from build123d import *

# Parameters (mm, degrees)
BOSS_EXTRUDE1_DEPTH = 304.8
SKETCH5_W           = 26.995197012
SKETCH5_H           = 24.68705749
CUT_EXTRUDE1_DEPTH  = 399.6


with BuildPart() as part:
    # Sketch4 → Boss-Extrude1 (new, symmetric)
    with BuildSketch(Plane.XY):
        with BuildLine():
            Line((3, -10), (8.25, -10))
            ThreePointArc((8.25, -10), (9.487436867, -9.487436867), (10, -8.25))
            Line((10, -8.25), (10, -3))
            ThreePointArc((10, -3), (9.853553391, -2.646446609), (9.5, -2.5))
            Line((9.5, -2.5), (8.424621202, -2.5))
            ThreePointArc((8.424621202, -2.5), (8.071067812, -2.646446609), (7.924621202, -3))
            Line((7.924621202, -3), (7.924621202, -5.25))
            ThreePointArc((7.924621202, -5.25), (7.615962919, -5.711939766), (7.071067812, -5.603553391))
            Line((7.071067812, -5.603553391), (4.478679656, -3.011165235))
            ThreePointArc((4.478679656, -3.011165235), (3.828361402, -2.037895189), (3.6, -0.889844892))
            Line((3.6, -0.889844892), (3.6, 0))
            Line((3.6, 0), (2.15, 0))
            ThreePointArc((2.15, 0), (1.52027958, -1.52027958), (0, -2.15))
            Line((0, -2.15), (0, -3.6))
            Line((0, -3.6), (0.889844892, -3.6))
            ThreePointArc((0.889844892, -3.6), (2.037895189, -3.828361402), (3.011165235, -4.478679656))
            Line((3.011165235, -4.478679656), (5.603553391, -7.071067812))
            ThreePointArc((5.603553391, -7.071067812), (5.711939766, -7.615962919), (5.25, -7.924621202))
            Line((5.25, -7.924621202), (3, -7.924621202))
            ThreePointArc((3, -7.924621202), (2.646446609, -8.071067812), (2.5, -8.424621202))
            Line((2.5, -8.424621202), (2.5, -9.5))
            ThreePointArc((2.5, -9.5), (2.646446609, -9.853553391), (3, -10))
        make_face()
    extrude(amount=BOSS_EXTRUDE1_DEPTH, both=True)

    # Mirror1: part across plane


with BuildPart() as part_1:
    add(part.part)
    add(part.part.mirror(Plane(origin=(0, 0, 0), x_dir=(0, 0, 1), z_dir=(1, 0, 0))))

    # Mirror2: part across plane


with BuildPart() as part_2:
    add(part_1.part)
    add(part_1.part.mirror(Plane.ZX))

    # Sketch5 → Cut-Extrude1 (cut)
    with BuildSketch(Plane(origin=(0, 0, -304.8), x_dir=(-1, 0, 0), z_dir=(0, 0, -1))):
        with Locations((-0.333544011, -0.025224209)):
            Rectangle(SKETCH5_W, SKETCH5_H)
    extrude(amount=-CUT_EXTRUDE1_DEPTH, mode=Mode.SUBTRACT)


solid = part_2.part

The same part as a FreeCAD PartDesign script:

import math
import FreeCAD as App
import Part
import Sketcher
Q = App.Units.Quantity

doc = App.newDocument("Part")
body = doc.addObject("PartDesign::Body", "Body")

# Sketch on XY plane
sketch1 = body.newObject("Sketcher::SketchObject", "Sketch")
sketch1.AttachmentSupport = (doc.getObject("XY_Plane"), [""])
sketch1.MapMode = "FlatFace"
sketch1.addGeometry([
    Part.LineSegment(App.Vector(3, -10, 0), App.Vector(8.25, -10, 0)),  # 0
    Part.ArcOfCircle(Part.Circle(App.Vector(8.25, -8.25, 0), App.Vector(0, 0, 1), 1.75), math.radians(-90), math.radians(0)),  # 1
    Part.LineSegment(App.Vector(10, -8.25, 0), App.Vector(10, -3, 0)),  # 2
    Part.ArcOfCircle(Part.Circle(App.Vector(9.5, -3, 0), App.Vector(0, 0, 1), 0.5), math.radians(0), math.radians(90)),  # 3
    Part.LineSegment(App.Vector(9.5, -2.5, 0), App.Vector(8.424621, -2.5, 0)),  # 4
    Part.ArcOfCircle(Part.Circle(App.Vector(8.424621, -3, 0), App.Vector(0, 0, 1), 0.5), math.radians(90), math.radians(180)),  # 5
    Part.LineSegment(App.Vector(7.924621, -3, 0), App.Vector(7.924621, -5.25, 0)),  # 6
    Part.ArcOfCircle(Part.Circle(App.Vector(7.424621, -5.25, 0), App.Vector(0, 0, 1), 0.5), math.radians(-135), math.radians(0)),  # 7
    Part.LineSegment(App.Vector(7.071068, -5.603553, 0), App.Vector(4.47868, -3.011165, 0)),  # 8
    Part.ArcOfCircle(Part.Circle(App.Vector(6.6, -0.889845, 0), App.Vector(0, 0, 1), 3), math.radians(180), math.radians(225)),  # 9
    Part.LineSegment(App.Vector(3.6, -0.889845, 0), App.Vector(3.6, 0, 0)),  # 10
    Part.LineSegment(App.Vector(3.6, 0, 0), App.Vector(2.15, 0, 0)),  # 11
    Part.ArcOfCircle(Part.Circle(App.Vector(0, 0, 0), App.Vector(0, 0, 1), 2.15), math.radians(-90), math.radians(0)),  # 12
    Part.LineSegment(App.Vector(0, -2.15, 0), App.Vector(0, -3.6, 0)),  # 13
    Part.LineSegment(App.Vector(0, -3.6, 0), App.Vector(0.889845, -3.6, 0)),  # 14
    Part.ArcOfCircle(Part.Circle(App.Vector(0.889845, -6.6, 0), App.Vector(0, 0, 1), 3), math.radians(45), math.radians(90)),  # 15
    Part.LineSegment(App.Vector(3.011165, -4.47868, 0), App.Vector(5.603553, -7.071068, 0)),  # 16
    Part.ArcOfCircle(Part.Circle(App.Vector(5.25, -7.424621, 0), App.Vector(0, 0, 1), 0.5), math.radians(-90), math.radians(45)),  # 17
    Part.LineSegment(App.Vector(5.25, -7.924621, 0), App.Vector(3, -7.924621, 0)),  # 18
    Part.ArcOfCircle(Part.Circle(App.Vector(3, -8.424621, 0), App.Vector(0, 0, 1), 0.5), math.radians(90), math.radians(180)),  # 19
    Part.LineSegment(App.Vector(2.5, -8.424621, 0), App.Vector(2.5, -9.5, 0)),  # 20
    Part.ArcOfCircle(Part.Circle(App.Vector(3, -9.5, 0), App.Vector(0, 0, 1), 0.5), math.radians(180), math.radians(270)),  # 21
], False)
sketch1.addConstraint([
    Sketcher.Constraint("Tangent", 0, 2, 1, 1),
    Sketcher.Constraint("Tangent", 1, 2, 2, 1),
    Sketcher.Constraint("Tangent", 2, 2, 3, 1),
    Sketcher.Constraint("Tangent", 3, 2, 4, 1),
    Sketcher.Constraint("Tangent", 4, 2, 5, 1),
    Sketcher.Constraint("Tangent", 5, 2, 6, 1),
    Sketcher.Constraint("Tangent", 6, 2, 7, 2),
    Sketcher.Constraint("Tangent", 7, 1, 8, 1),
    Sketcher.Constraint("Tangent", 8, 2, 9, 2),
    Sketcher.Constraint("Tangent", 9, 1, 10, 1),
    Sketcher.Constraint("Coincident", 10, 2, 11, 1),
    Sketcher.Constraint("Coincident", 11, 2, 12, 2),
    Sketcher.Constraint("Coincident", 12, 1, 13, 1),
    Sketcher.Constraint("Coincident", 13, 2, 14, 1),
    Sketcher.Constraint("Tangent", 14, 2, 15, 2),
    Sketcher.Constraint("Tangent", 15, 1, 16, 1),
    Sketcher.Constraint("Tangent", 16, 2, 17, 2),
    Sketcher.Constraint("Tangent", 17, 1, 18, 1),
    Sketcher.Constraint("Tangent", 18, 2, 19, 1),
    Sketcher.Constraint("Tangent", 19, 2, 20, 1),
    Sketcher.Constraint("Tangent", 20, 2, 21, 1),
    Sketcher.Constraint("Tangent", 21, 2, 0, 1),
    Sketcher.Constraint("Horizontal", 0),
    Sketcher.Constraint("Vertical", 2),
    Sketcher.Constraint("Horizontal", 4),
    Sketcher.Constraint("Vertical", 6),
    Sketcher.Constraint("Vertical", 10),
    Sketcher.Constraint("Horizontal", 11),
    Sketcher.Constraint("Vertical", 13),
    Sketcher.Constraint("Horizontal", 14),
    Sketcher.Constraint("Horizontal", 18),
    Sketcher.Constraint("Vertical", 20),
    Sketcher.Constraint("Coincident", 12, 3, -1, 1),
    Sketcher.Constraint("Equal", 3, 5),
    Sketcher.Constraint("Equal", 5, 7),
    Sketcher.Constraint("Equal", 9, 15),
    Sketcher.Constraint("Equal", 7, 17),
    Sketcher.Constraint("Equal", 17, 19),
    Sketcher.Constraint("Equal", 19, 21),
    Sketcher.Constraint("PointOnObject", 10, 2, -1),
    Sketcher.Constraint("PointOnObject", 12, 1, -2),
    Sketcher.Constraint("Parallel", 8, 16),
    Sketcher.Constraint("Equal", 0, 2),
    Sketcher.Constraint("Equal", 18, 6),
    Sketcher.Constraint("Equal", 14, 10),
    Sketcher.Constraint("Equal", 11, 13),
    Sketcher.Constraint("Equal", 4, 20),
    Sketcher.Constraint("Equal", 8, 16),
    Sketcher.Constraint("Radius", 9, Q("3 mm")),
    Sketcher.Constraint("Radius", 3, Q("0.5 mm")),
    Sketcher.Constraint("Radius", 1, Q("1.75 mm")),
    Sketcher.Constraint("Radius", 12, Q("2.15 mm")),
    Sketcher.Constraint("DistanceY", 3, 3, -1, 1, Q("3 mm")),
    Sketcher.Constraint("DistanceY", 0, 2, -1, 1, Q("10 mm")),
    Sketcher.Constraint("DistanceY", 1, 3, 7, 3, Q("3 mm")),
    Sketcher.Constraint("DistanceX", 11, 2, 11, 1, Q("1.45 mm")),
    Sketcher.Constraint("DistanceX", 4, 2, 4, 1, Q("1.075379 mm")),
])
pad1 = body.newObject("PartDesign::Pad", "Pad")
pad1.Profile = sketch1
pad1.Length = 609.6
pad1.Midplane = True
body2 = doc.addObject("PartDesign::Body", "Body001")
doc.recompute()

body2.BaseFeature = body
doc.recompute()

mirroring = doc.addObject("Part::Mirroring", "Mirroring")
mirroring.Source = body
mirroring.Base = App.Vector(0, 0, 0)
mirroring.Normal = App.Vector(1, 0, 0)
body3 = doc.addObject("PartDesign::Body", "Body002")
body3.BaseFeature = mirroring
boolean = body2.newObject("PartDesign::Boolean", "Boolean")
boolean.Type = "Fuse"
boolean.addObjects([body3])
doc.recompute()
body4 = doc.addObject("PartDesign::Body", "Body003")
doc.recompute()

body4.BaseFeature = body2
doc.recompute()

mirroring2 = doc.addObject("Part::Mirroring", "Mirroring001")
mirroring2.Source = body2
mirroring2.Base = App.Vector(0, 0, 0)
mirroring2.Normal = App.Vector(0, 1, 0)
body5 = doc.addObject("PartDesign::Body", "Body004")
body5.BaseFeature = mirroring2
boolean2 = body4.newObject("PartDesign::Boolean", "Boolean001")
boolean2.Type = "Fuse"
boolean2.addObjects([body5])
doc.recompute()

# Sketch on XY plane
sketch2 = body4.newObject("Sketcher::SketchObject", "Sketch001")
sketch2.AttachmentSupport = (doc.getObject("XY_Plane003"), [""])
sketch2.MapMode = "FlatFace"
sketch2.AttachmentOffset = App.Placement(App.Vector(0, 0, -304.8), App.Rotation())
sketch2.addGeometry([
    Part.LineSegment(App.Vector(13.831143, 12.318305, 0), App.Vector(13.831143, -12.368753, 0)),
    Part.LineSegment(App.Vector(13.831143, -12.368753, 0), App.Vector(-13.164054, -12.368753, 0)),
    Part.LineSegment(App.Vector(-13.164054, -12.368753, 0), App.Vector(-13.164054, 12.318305, 0)),
    Part.LineSegment(App.Vector(-13.164054, 12.318305, 0), App.Vector(13.831143, 12.318305, 0)),
], False)
sketch2.addConstraint([
    Sketcher.Constraint("Coincident", 0, 2, 1, 1),
    Sketcher.Constraint("Coincident", 1, 2, 2, 1),
    Sketcher.Constraint("Coincident", 2, 2, 3, 1),
    Sketcher.Constraint("Coincident", 3, 2, 0, 1),
    Sketcher.Constraint("Vertical", 0),
    Sketcher.Constraint("Horizontal", 1),
    Sketcher.Constraint("Vertical", 2),
    Sketcher.Constraint("Horizontal", 3),
    Sketcher.Constraint("DistanceX", 1, 2, 1, 1, Q("26.995197 mm")),
    Sketcher.Constraint("DistanceY", 0, 2, 0, 1, Q("24.687057 mm")),
    Sketcher.Constraint("DistanceX", -1, 1, 0, 2, Q("13.831143 mm")),
    Sketcher.Constraint("DistanceY", 0, 2, -1, 1, Q("12.368753 mm")),
])
pocket1 = body4.newObject("PartDesign::Pocket", "Pocket")
pocket1.Profile = sketch2
pocket1.Length = 399.6
pocket1.Reversed = True
mirroring.Visibility = False
mirroring2.Visibility = False

doc.recompute()
